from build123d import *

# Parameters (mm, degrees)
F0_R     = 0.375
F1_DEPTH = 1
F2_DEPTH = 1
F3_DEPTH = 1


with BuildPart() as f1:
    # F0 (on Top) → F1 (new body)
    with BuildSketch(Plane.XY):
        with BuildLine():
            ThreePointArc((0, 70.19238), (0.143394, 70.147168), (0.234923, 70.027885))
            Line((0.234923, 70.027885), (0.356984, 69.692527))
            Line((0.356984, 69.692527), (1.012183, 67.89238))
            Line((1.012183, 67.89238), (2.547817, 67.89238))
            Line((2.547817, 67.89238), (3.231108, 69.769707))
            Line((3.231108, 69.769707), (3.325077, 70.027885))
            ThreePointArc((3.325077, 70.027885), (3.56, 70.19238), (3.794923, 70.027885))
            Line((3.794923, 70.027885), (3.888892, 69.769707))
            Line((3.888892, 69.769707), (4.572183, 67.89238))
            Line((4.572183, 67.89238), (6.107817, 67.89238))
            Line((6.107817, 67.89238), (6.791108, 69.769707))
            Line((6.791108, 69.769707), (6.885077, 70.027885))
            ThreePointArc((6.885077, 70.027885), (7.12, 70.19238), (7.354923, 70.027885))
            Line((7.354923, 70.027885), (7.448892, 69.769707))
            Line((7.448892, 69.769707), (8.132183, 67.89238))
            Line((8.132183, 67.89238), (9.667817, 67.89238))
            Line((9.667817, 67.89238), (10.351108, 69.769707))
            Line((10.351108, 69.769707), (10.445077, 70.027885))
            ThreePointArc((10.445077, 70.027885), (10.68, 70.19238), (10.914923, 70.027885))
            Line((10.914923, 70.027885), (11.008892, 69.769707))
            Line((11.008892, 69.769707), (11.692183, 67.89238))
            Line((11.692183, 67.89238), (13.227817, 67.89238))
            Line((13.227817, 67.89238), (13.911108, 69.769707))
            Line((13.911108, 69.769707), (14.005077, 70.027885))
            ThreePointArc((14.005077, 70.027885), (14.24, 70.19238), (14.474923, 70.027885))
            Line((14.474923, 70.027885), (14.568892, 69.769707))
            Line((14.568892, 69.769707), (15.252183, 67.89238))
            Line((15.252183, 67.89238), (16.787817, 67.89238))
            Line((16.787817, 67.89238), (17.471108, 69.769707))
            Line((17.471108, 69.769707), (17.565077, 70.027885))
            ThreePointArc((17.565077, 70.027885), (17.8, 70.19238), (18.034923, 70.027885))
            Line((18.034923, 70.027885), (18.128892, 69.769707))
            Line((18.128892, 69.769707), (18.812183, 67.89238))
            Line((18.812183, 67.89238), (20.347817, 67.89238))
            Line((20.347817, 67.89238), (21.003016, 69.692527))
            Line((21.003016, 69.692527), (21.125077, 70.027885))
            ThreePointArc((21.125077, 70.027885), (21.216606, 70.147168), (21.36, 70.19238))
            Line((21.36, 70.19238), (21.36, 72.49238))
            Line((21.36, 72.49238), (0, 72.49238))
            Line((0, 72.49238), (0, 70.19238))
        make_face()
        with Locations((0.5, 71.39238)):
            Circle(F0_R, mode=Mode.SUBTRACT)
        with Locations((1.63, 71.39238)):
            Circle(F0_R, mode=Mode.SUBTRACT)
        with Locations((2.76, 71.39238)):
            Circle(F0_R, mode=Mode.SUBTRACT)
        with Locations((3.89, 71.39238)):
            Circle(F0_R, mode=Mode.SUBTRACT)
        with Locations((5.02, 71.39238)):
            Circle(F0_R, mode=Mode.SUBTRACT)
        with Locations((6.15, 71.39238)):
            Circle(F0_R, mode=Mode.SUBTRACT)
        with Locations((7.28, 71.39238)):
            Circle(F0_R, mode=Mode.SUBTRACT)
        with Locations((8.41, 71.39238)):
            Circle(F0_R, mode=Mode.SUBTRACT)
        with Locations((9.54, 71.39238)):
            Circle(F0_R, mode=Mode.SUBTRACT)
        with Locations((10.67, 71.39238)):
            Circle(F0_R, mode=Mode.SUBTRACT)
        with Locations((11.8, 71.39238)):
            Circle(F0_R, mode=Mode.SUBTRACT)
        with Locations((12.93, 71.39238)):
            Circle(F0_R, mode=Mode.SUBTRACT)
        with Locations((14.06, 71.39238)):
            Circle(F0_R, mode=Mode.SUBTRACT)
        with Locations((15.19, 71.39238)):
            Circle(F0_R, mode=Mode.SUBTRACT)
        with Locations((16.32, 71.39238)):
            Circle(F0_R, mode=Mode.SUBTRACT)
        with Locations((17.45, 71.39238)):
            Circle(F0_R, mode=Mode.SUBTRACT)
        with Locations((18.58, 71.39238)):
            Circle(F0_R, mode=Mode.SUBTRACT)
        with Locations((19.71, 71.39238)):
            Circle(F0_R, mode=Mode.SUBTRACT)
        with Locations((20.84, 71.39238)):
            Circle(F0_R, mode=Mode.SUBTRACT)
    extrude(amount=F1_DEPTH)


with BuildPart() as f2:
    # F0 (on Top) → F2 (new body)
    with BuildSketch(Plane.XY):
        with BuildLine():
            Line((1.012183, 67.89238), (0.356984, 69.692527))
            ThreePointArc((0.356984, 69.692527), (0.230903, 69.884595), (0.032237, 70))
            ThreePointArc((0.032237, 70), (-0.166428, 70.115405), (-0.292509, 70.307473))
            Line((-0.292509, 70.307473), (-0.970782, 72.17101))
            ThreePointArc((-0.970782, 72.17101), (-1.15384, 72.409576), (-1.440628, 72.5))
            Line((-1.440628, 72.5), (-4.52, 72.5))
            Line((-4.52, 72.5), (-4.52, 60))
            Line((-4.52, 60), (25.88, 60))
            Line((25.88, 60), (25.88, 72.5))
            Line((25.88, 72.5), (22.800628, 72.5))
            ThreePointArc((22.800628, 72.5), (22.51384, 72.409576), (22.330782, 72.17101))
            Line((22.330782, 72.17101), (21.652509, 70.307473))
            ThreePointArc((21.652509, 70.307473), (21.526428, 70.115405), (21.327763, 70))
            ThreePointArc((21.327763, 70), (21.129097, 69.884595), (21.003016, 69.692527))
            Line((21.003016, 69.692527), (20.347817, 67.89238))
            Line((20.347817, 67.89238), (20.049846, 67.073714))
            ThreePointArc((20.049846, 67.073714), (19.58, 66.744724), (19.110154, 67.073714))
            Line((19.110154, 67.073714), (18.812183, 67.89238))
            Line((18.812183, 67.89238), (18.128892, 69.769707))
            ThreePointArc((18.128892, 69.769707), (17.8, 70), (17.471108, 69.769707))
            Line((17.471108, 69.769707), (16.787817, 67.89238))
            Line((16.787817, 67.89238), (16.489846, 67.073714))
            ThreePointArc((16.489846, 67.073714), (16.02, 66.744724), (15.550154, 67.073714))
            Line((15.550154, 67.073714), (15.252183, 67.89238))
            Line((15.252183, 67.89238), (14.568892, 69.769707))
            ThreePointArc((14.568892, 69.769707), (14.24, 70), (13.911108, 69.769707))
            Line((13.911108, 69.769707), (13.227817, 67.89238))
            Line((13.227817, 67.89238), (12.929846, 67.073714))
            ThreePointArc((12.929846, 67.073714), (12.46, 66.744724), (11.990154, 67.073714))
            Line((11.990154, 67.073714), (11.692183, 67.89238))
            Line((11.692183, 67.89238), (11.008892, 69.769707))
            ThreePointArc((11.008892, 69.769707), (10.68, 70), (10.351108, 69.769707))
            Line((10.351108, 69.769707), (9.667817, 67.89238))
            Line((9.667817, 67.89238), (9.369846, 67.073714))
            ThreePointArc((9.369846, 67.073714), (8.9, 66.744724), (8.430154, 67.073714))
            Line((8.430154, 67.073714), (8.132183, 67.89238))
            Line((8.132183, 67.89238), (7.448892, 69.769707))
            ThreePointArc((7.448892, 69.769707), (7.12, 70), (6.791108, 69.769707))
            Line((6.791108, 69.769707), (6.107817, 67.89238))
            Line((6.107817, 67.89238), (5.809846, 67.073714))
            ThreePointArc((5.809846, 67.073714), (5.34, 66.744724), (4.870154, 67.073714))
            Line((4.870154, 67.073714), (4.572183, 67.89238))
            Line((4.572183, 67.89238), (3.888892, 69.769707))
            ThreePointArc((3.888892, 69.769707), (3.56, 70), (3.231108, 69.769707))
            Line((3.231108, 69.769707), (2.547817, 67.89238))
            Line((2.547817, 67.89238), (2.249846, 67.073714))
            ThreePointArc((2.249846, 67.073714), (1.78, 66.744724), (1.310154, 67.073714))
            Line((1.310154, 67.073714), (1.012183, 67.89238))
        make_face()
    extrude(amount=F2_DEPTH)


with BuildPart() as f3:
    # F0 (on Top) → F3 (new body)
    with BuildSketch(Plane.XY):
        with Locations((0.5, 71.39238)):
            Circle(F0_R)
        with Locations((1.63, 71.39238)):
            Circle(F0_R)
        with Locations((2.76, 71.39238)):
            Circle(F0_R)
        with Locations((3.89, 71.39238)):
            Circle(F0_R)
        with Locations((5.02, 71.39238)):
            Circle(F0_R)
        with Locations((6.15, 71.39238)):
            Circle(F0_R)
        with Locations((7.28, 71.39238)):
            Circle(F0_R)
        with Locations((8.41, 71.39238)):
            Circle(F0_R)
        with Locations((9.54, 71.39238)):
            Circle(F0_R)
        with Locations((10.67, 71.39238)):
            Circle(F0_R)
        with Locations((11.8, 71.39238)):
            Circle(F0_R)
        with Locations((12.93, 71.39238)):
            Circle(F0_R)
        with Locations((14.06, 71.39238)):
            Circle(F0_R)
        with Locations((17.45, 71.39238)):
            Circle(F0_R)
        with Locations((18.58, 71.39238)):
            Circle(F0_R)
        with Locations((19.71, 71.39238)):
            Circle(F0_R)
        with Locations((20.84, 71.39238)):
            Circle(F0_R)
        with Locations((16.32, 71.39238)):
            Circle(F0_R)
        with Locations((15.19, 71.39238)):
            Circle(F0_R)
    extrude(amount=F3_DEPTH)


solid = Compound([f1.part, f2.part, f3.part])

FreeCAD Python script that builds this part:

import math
import FreeCAD as App
import Part
import Sketcher
Q = App.Units.Quantity

doc = App.newDocument("Part")
params = doc.addObject("Spreadsheet::Sheet", "Params")
for row, (alias, value) in enumerate([
    ("sketch1_diameter", "0.75 mm"),
    ("sketch1_radius", "0.25 mm"),
    ("sketch1_height", "2.3 mm"),
    ("sketch1_width", "21.36 mm"),
    ("pad1_length", "1 mm"),
    ("sketch2_radius", "0.499998 mm"),
    ("sketch2_radius2", "0.349999 mm"),
    ("sketch2_width", "30.4 mm"),
    ("sketch2_height", "12.5 mm"),
    ("pad2_length", "1 mm"),
    ("sketch3_diameter", "0.75 mm"),
    ("pad3_length", "1 mm"),
], start=1):
    params.set(f"A{row}", alias)
    params.set(f"B{row}", "=" + value)
    params.setAlias(f"B{row}", alias)

body = doc.addObject("PartDesign::Body", "Body")

# Sketch on XY plane
sketch1 = doc.addObject("Sketcher::SketchObject", "Sketch")
body.addObject(sketch1)
sketch1.AttachmentSupport = (doc.XY_Plane, [""])
sketch1.MapMode = "FlatFace"
sketch1.addGeometry(Part.ArcOfCircle(Part.Circle(App.Vector(0, 69.94, 0), App.Vector(0, 0, 1), 0.25), math.radians(20), math.radians(90)), False)
sketch1.addGeometry(Part.LineSegment(App.Vector(0.23, 70.03, 0), App.Vector(0.36, 69.69, 0)), False)
sketch1.addGeometry(Part.LineSegment(App.Vector(0.36, 69.69, 0), App.Vector(1.01, 67.89, 0)), False)
sketch1.addGeometry(Part.LineSegment(App.Vector(1.01, 67.89, 0), App.Vector(2.55, 67.89, 0)), False)
sketch1.addGeometry(Part.LineSegment(App.Vector(2.55, 67.89, 0), App.Vector(3.23, 69.77, 0)), False)
sketch1.addGeometry(Part.LineSegment(App.Vector(3.23, 69.77, 0), App.Vector(3.33, 70.03, 0)), False)
sketch1.addGeometry(Part.ArcOfCircle(Part.Circle(App.Vector(3.56, 69.94, 0), App.Vector(0, 0, 1), 0.25), math.radians(20), math.radians(160)), False)
sketch1.addGeometry(Part.LineSegment(App.Vector(3.79, 70.03, 0), App.Vector(3.89, 69.77, 0)), False)
sketch1.addGeometry(Part.LineSegment(App.Vector(3.89, 69.77, 0), App.Vector(4.57, 67.89, 0)), False)
sketch1.addGeometry(Part.LineSegment(App.Vector(4.57, 67.89, 0), App.Vector(6.11, 67.89, 0)), False)
sketch1.addGeometry(Part.LineSegment(App.Vector(6.11, 67.89, 0), App.Vector(6.79, 69.77, 0)), False)
sketch1.addGeometry(Part.LineSegment(App.Vector(6.79, 69.77, 0), App.Vector(6.89, 70.03, 0)), False)
sketch1.addGeometry(Part.ArcOfCircle(Part.Circle(App.Vector(7.12, 69.94, 0), App.Vector(0, 0, 1), 0.25), math.radians(20), math.radians(160)), False)
sketch1.addGeometry(Part.LineSegment(App.Vector(7.35, 70.03, 0), App.Vector(7.45, 69.77, 0)), False)
sketch1.addGeometry(Part.LineSegment(App.Vector(7.45, 69.77, 0), App.Vector(8.13, 67.89, 0)), False)
sketch1.addGeometry(Part.LineSegment(App.Vector(8.13, 67.89, 0), App.Vector(9.67, 67.89, 0)), False)
sketch1.addGeometry(Part.LineSegment(App.Vector(9.67, 67.89, 0), App.Vector(10.35, 69.77, 0)), False)
sketch1.addGeometry(Part.LineSegment(App.Vector(10.35, 69.77, 0), App.Vector(10.45, 70.03, 0)), False)
sketch1.addGeometry(Part.ArcOfCircle(Part.Circle(App.Vector(10.68, 69.94, 0), App.Vector(0, 0, 1), 0.25), math.radians(20), math.radians(160)), False)
sketch1.addGeometry(Part.LineSegment(App.Vector(10.91, 70.03, 0), App.Vector(11.01, 69.77, 0)), False)
sketch1.addGeometry(Part.LineSegment(App.Vector(11.01, 69.77, 0), App.Vector(11.69, 67.89, 0)), False)
sketch1.addGeometry(Part.LineSegment(App.Vector(11.69, 67.89, 0), App.Vector(13.23, 67.89, 0)), False)
sketch1.addGeometry(Part.LineSegment(App.Vector(13.23, 67.89, 0), App.Vector(13.91, 69.77, 0)), False)
sketch1.addGeometry(Part.LineSegment(App.Vector(13.91, 69.77, 0), App.Vector(14.01, 70.03, 0)), False)
sketch1.addGeometry(Part.ArcOfCircle(Part.Circle(App.Vector(14.24, 69.94, 0), App.Vector(0, 0, 1), 0.25), math.radians(20), math.radians(160)), False)
sketch1.addGeometry(Part.LineSegment(App.Vector(14.47, 70.03, 0), App.Vector(14.57, 69.77, 0)), False)
sketch1.addGeometry(Part.LineSegment(App.Vector(14.57, 69.77, 0), App.Vector(15.25, 67.89, 0)), False)
sketch1.addGeometry(Part.LineSegment(App.Vector(15.25, 67.89, 0), App.Vector(16.79, 67.89, 0)), False)
sketch1.addGeometry(Part.LineSegment(App.Vector(16.79, 67.89, 0), App.Vector(17.47, 69.77, 0)), False)
sketch1.addGeometry(Part.LineSegment(App.Vector(17.47, 69.77, 0), App.Vector(17.57, 70.03, 0)), False)
sketch1.addGeometry(Part.ArcOfCircle(Part.Circle(App.Vector(17.8, 69.94, 0), App.Vector(0, 0, 1), 0.25), math.radians(20), math.radians(160)), False)
sketch1.addGeometry(Part.LineSegment(App.Vector(18.03, 70.03, 0), App.Vector(18.13, 69.77, 0)), False)
sketch1.addGeometry(Part.LineSegment(App.Vector(18.13, 69.77, 0), App.Vector(18.81, 67.89, 0)), False)
sketch1.addGeometry(Part.LineSegment(App.Vector(18.81, 67.89, 0), App.Vector(20.35, 67.89, 0)), False)
sketch1.addGeometry(Part.LineSegment(App.Vector(20.35, 67.89, 0), App.Vector(21, 69.69, 0)), False)
sketch1.addGeometry(Part.LineSegment(App.Vector(21, 69.69, 0), App.Vector(21.13, 70.03, 0)), False)
sketch1.addGeometry(Part.ArcOfCircle(Part.Circle(App.Vector(21.36, 69.94, 0), App.Vector(0, 0, 1), 0.25), math.radians(90), math.radians(160)), False)
sketch1.addGeometry(Part.LineSegment(App.Vector(21.36, 70.19, 0), App.Vector(21.36, 72.49, 0)), False)
sketch1.addGeometry(Part.LineSegment(App.Vector(21.36, 72.49, 0), App.Vector(0, 72.49, 0)), False)
sketch1.addGeometry(Part.LineSegment(App.Vector(0, 72.49, 0), App.Vector(0, 70.19, 0)), False)
sketch1.addGeometry(Part.Circle(App.Vector(0.5, 71.39, 0), App.Vector(0, 0, 1), 0.38), False)
sketch1.addGeometry(Part.Circle(App.Vector(1.63, 71.39, 0), App.Vector(0, 0, 1), 0.38), False)
sketch1.addGeometry(Part.Circle(App.Vector(2.76, 71.39, 0), App.Vector(0, 0, 1), 0.38), False)
sketch1.addGeometry(Part.Circle(App.Vector(3.89, 71.39, 0), App.Vector(0, 0, 1), 0.38), False)
sketch1.addGeometry(Part.Circle(App.Vector(5.02, 71.39, 0), App.Vector(0, 0, 1), 0.38), False)
sketch1.addGeometry(Part.Circle(App.Vector(6.15, 71.39, 0), App.Vector(0, 0, 1), 0.38), False)
sketch1.addGeometry(Part.Circle(App.Vector(7.28, 71.39, 0), App.Vector(0, 0, 1), 0.38), False)
sketch1.addGeometry(Part.Circle(App.Vector(8.41, 71.39, 0), App.Vector(0, 0, 1), 0.38), False)
sketch1.addGeometry(Part.Circle(App.Vector(9.54, 71.39, 0), App.Vector(0, 0, 1), 0.38), False)
sketch1.addGeometry(Part.Circle(App.Vector(10.67, 71.39, 0), App.Vector(0, 0, 1), 0.38), False)
sketch1.addGeometry(Part.Circle(App.Vector(11.8, 71.39, 0), App.Vector(0, 0, 1), 0.38), False)
sketch1.addGeometry(Part.Circle(App.Vector(12.93, 71.39, 0), App.Vector(0, 0, 1), 0.38), False)
sketch1.addGeometry(Part.Circle(App.Vector(14.06, 71.39, 0), App.Vector(0, 0, 1), 0.38), False)
sketch1.addGeometry(Part.Circle(App.Vector(15.19, 71.39, 0), App.Vector(0, 0, 1), 0.38), False)
sketch1.addGeometry(Part.Circle(App.Vector(16.32, 71.39, 0), App.Vector(0, 0, 1), 0.38), False)
sketch1.addGeometry(Part.Circle(App.Vector(17.45, 71.39, 0), App.Vector(0, 0, 1), 0.38), False)
sketch1.addGeometry(Part.Circle(App.Vector(18.58, 71.39, 0), App.Vector(0, 0, 1), 0.38), False)
sketch1.addGeometry(Part.Circle(App.Vector(19.71, 71.39, 0), App.Vector(0, 0, 1), 0.38), False)
sketch1.addGeometry(Part.Circle(App.Vector(20.84, 71.39, 0), App.Vector(0, 0, 1), 0.38), False)
sketch1.addConstraint(Sketcher.Constraint("Coincident", 0, 1, 1, 1))
sketch1.addConstraint(Sketcher.Constraint("Coincident", 1, 2, 2, 1))
sketch1.addConstraint(Sketcher.Constraint("Coincident", 2, 2, 3, 1))
sketch1.addConstraint(Sketcher.Constraint("Coincident", 3, 2, 4, 1))
sketch1.addConstraint(Sketcher.Constraint("Coincident", 4, 2, 5, 1))
sketch1.addConstraint(Sketcher.Constraint("Tangent", 5, 2, 6, 2))
sketch1.addConstraint(Sketcher.Constraint("Tangent", 6, 1, 7, 1))
sketch1.addConstraint(Sketcher.Constraint("Coincident", 7, 2, 8, 1))
sketch1.addConstraint(Sketcher.Constraint("Coincident", 8, 2, 9, 1))
sketch1.addConstraint(Sketcher.Constraint("Coincident", 9, 2, 10, 1))
sketch1.addConstraint(Sketcher.Constraint("Coincident", 10, 2, 11, 1))
sketch1.addConstraint(Sketcher.Constraint("Tangent", 11, 2, 12, 2))
sketch1.addConstraint(Sketcher.Constraint("Tangent", 12, 1, 13, 1))
sketch1.addConstraint(Sketcher.Constraint("Coincident", 13, 2, 14, 1))
sketch1.addConstraint(Sketcher.Constraint("Coincident", 14, 2, 15, 1))
sketch1.addConstraint(Sketcher.Constraint("Coincident", 15, 2, 16, 1))
sketch1.addConstraint(Sketcher.Constraint("Coincident", 16, 2, 17, 1))
sketch1.addConstraint(Sketcher.Constraint("Tangent", 17, 2, 18, 2))
sketch1.addConstraint(Sketcher.Constraint("Tangent", 18, 1, 19, 1))
sketch1.addConstraint(Sketcher.Constraint("Coincident", 19, 2, 20, 1))
sketch1.addConstraint(Sketcher.Constraint("Coincident", 20, 2, 21, 1))
sketch1.addConstraint(Sketcher.Constraint("Coincident", 21, 2, 22, 1))
sketch1.addConstraint(Sketcher.Constraint("Coincident", 22, 2, 23, 1))
sketch1.addConstraint(Sketcher.Constraint("Tangent", 23, 2, 24, 2))
sketch1.addConstraint(Sketcher.Constraint("Tangent", 24, 1, 25, 1))
sketch1.addConstraint(Sketcher.Constraint("Coincident", 25, 2, 26, 1))
sketch1.addConstraint(Sketcher.Constraint("Coincident", 26, 2, 27, 1))
sketch1.addConstraint(Sketcher.Constraint("Coincident", 27, 2, 28, 1))
sketch1.addConstraint(Sketcher.Constraint("Coincident", 28, 2, 29, 1))
sketch1.addConstraint(Sketcher.Constraint("Tangent", 29, 2, 30, 2))
sketch1.addConstraint(Sketcher.Constraint("Tangent", 30, 1, 31, 1))
sketch1.addConstraint(Sketcher.Constraint("Coincident", 31, 2, 32, 1))
sketch1.addConstraint(Sketcher.Constraint("Coincident", 32, 2, 33, 1))
sketch1.addConstraint(Sketcher.Constraint("Coincident", 33, 2, 34, 1))
sketch1.addConstraint(Sketcher.Constraint("Coincident", 34, 2, 35, 1))
sketch1.addConstraint(Sketcher.Constraint("Coincident", 35, 2, 36, 2))
sketch1.addConstraint(Sketcher.Constraint("Coincident", 36, 1, 37, 1))
sketch1.addConstraint(Sketcher.Constraint("Coincident", 37, 2, 38, 1))
sketch1.addConstraint(Sketcher.Constraint("Coincident", 38, 2, 39, 1))
sketch1.addConstraint(Sketcher.Constraint("Coincident", 39, 2, 0, 2))
sketch1.addConstraint(Sketcher.Constraint("Horizontal", 3))
sketch1.addConstraint(Sketcher.Constraint("Horizontal", 9))
sketch1.addConstraint(Sketcher.Constraint("Horizontal", 15))
sketch1.addConstraint(Sketcher.Constraint("Horizontal", 21))
sketch1.addConstraint(Sketcher.Constraint("Horizontal", 27))
sketch1.addConstraint(Sketcher.Constraint("Horizontal", 33))
sketch1.addConstraint(Sketcher.Constraint("Vertical", 37))
sketch1.addConstraint(Sketcher.Constraint("Horizontal", 38))
sketch1.addConstraint(Sketcher.Constraint("Vertical", 39))
sketch1.addConstraint(Sketcher.Constraint("Equal", 0, 6))
sketch1.addConstraint(Sketcher.Constraint("Equal", 6, 12))
sketch1.addConstraint(Sketcher.Constraint("Equal", 12, 18))
sketch1.addConstraint(Sketcher.Constraint("Equal", 18, 24))
sketch1.addConstraint(Sketcher.Constraint("Equal", 24, 30))
sketch1.addConstraint(Sketcher.Constraint("Equal", 30, 36))
sketch1.addConstraint(Sketcher.Constraint("Equal", 40, 41))
sketch1.addConstraint(Sketcher.Constraint("Equal", 41, 42))
sketch1.addConstraint(Sketcher.Constraint("Equal", 42, 43))
sketch1.addConstraint(Sketcher.Constraint("Equal", 43, 44))
sketch1.addConstraint(Sketcher.Constraint("Equal", 44, 45))
sketch1.addConstraint(Sketcher.Constraint("Equal", 45, 46))
sketch1.addConstraint(Sketcher.Constraint("Equal", 46, 47))
sketch1.addConstraint(Sketcher.Constraint("Equal", 47, 48))
sketch1.addConstraint(Sketcher.Constraint("Equal", 48, 49))
sketch1.addConstraint(Sketcher.Constraint("Equal", 49, 50))
sketch1.addConstraint(Sketcher.Constraint("Equal", 50, 51))
sketch1.addConstraint(Sketcher.Constraint("Equal", 51, 52))
sketch1.addConstraint(Sketcher.Constraint("Equal", 52, 53))
sketch1.addConstraint(Sketcher.Constraint("Equal", 53, 54))
sketch1.addConstraint(Sketcher.Constraint("Equal", 54, 55))
sketch1.addConstraint(Sketcher.Constraint("Equal", 55, 56))
sketch1.addConstraint(Sketcher.Constraint("Equal", 56, 57))
sketch1.addConstraint(Sketcher.Constraint("Equal", 57, 58))
sketch1.addConstraint(Sketcher.Constraint("PointOnObject", 0, 3, -2))
sketch1.addConstraint(Sketcher.Constraint("PointOnObject", 38, 2, -2))
sketch1.addConstraint(Sketcher.Constraint("Parallel", 4, 5))
sketch1.addConstraint(Sketcher.Constraint("Parallel", 2, 7))
sketch1.addConstraint(Sketcher.Constraint("Parallel", 7, 8))
sketch1.addConstraint(Sketcher.Constraint("Parallel", 5, 10))
sketch1.addConstraint(Sketcher.Constraint("Parallel", 10, 11))
sketch1.addConstraint(Sketcher.Constraint("Parallel", 8, 13))
sketch1.addConstraint(Sketcher.Constraint("Parallel", 13, 14))
sketch1.addConstraint(Sketcher.Constraint("Parallel", 11, 16))
sketch1.addConstraint(Sketcher.Constraint("Parallel", 16, 17))
sketch1.addConstraint(Sketcher.Constraint("Parallel", 14, 19))
sketch1.addConstraint(Sketcher.Constraint("Parallel", 19, 20))
sketch1.addConstraint(Sketcher.Constraint("Parallel", 17, 22))
sketch1.addConstraint(Sketcher.Constraint("Parallel", 22, 23))
sketch1.addConstraint(Sketcher.Constraint("Parallel", 20, 25))
sketch1.addConstraint(Sketcher.Constraint("Parallel", 25, 26))
sketch1.addConstraint(Sketcher.Constraint("Parallel", 23, 28))
sketch1.addConstraint(Sketcher.Constraint("Parallel", 28, 29))
sketch1.addConstraint(Sketcher.Constraint("Parallel", 26, 31))
sketch1.addConstraint(Sketcher.Constraint("Parallel", 31, 32))
sketch1.addConstraint(Sketcher.Constraint("Parallel", 29, 34))
sketch1.addConstraint(Sketcher.Constraint("Parallel", 28, 35))
sketch1.addConstraint(Sketcher.Constraint("Horizontal", 0, 3, 6, 3))
sketch1.addConstraint(Sketcher.Constraint("Horizontal", 6, 3, 12, 3))
sketch1.addConstraint(Sketcher.Constraint("Horizontal", 12, 3, 18, 3))
sketch1.addConstraint(Sketcher.Constraint("Horizontal", 18, 3, 24, 3))
sketch1.addConstraint(Sketcher.Constraint("Horizontal", 24, 3, 30, 3))
sketch1.addConstraint(Sketcher.Constraint("Horizontal", 30, 3, 36, 3))
sketch1.addConstraint(Sketcher.Constraint("Horizontal", 40, 3, 41, 3))
sketch1.addConstraint(Sketcher.Constraint("Horizontal", 41, 3, 42, 3))
sketch1.addConstraint(Sketcher.Constraint("Horizontal", 42, 3, 43, 3))
sketch1.addConstraint(Sketcher.Constraint("Horizontal", 43, 3, 44, 3))
sketch1.addConstraint(Sketcher.Constraint("Horizontal", 44, 3, 45, 3))
sketch1.addConstraint(Sketcher.Constraint("Horizontal", 45, 3, 46, 3))
sketch1.addConstraint(Sketcher.Constraint("Horizontal", 46, 3, 47, 3))
sketch1.addConstraint(Sketcher.Constraint("Horizontal", 47, 3, 48, 3))
sketch1.addConstraint(Sketcher.Constraint("Horizontal", 48, 3, 49, 3))
sketch1.addConstraint(Sketcher.Constraint("Horizontal", 49, 3, 50, 3))
sketch1.addConstraint(Sketcher.Constraint("Horizontal", 50, 3, 51, 3))
sketch1.addConstraint(Sketcher.Constraint("Horizontal", 51, 3, 52, 3))
sketch1.addConstraint(Sketcher.Constraint("Horizontal", 52, 3, 53, 3))
sketch1.addConstraint(Sketcher.Constraint("Horizontal", 53, 3, 54, 3))
sketch1.addConstraint(Sketcher.Constraint("Horizontal", 54, 3, 55, 3))
sketch1.addConstraint(Sketcher.Constraint("Horizontal", 55, 3, 56, 3))
sketch1.addConstraint(Sketcher.Constraint("Horizontal", 56, 3, 57, 3))
sketch1.addConstraint(Sketcher.Constraint("Horizontal", 57, 3, 58, 3))
sketch1.addConstraint(Sketcher.Constraint("Horizontal", 0, 1, 5, 2))
sketch1.addConstraint(Sketcher.Constraint("Horizontal", 5, 2, 6, 1))
sketch1.addConstraint(Sketcher.Constraint("Horizontal", 4, 2, 7, 2))
sketch1.addConstraint(Sketcher.Constraint("Horizontal", 3, 2, 8, 2))
sketch1.addConstraint(Sketcher.Constraint("Horizontal", 7, 2, 10, 2))
sketch1.addConstraint(Sketcher.Constraint("Horizontal", 10, 2, 13, 2))
sketch1.addConstraint(Sketcher.Constraint("Horizontal", 9, 2, 14, 2))
sketch1.addConstraint(Sketcher.Constraint("Horizontal", 13, 2, 16, 2))
sketch1.addConstraint(Sketcher.Constraint("Horizontal", 16, 2, 19, 2))
sketch1.addConstraint(Sketcher.Constraint("Horizontal", 15, 2, 20, 2))
sketch1.addConstraint(Sketcher.Constraint("Horizontal", 19, 2, 22, 2))
sketch1.addConstraint(Sketcher.Constraint("Horizontal", 22, 2, 25, 2))
sketch1.addConstraint(Sketcher.Constraint("Horizontal", 21, 2, 26, 2))
sketch1.addConstraint(Sketcher.Constraint("Horizontal", 25, 2, 28, 2))
sketch1.addConstraint(Sketcher.Constraint("Horizontal", 28, 2, 31, 2))
sketch1.addConstraint(Sketcher.Constraint("Horizontal", 27, 2, 32, 2))
sketch1.addConstraint(Sketcher.Constraint("Horizontal", 1, 2, 34, 2))
sketch1.addConstraint(Sketcher.Constraint("Horizontal", 30, 1, 35, 2))
sketch1.addConstraint(Sketcher.Constraint("Equal", 3, 9))
sketch1.addConstraint(Sketcher.Constraint("Equal", 9, 15))
sketch1.addConstraint(Sketcher.Constraint("Equal", 15, 21))
sketch1.addConstraint(Sketcher.Constraint("Equal", 21, 27))
sketch1.addConstraint(Sketcher.Constraint("Equal", 27, 33))
sketch1.addConstraint(Sketcher.Constraint("Equal", 1, 35))
sketch1.addConstraint(Sketcher.Constraint("Diameter", 40, 0.75))
sketch1.addConstraint(Sketcher.Constraint("Angle", 4, Q("70.000004 deg")))
sketch1.addConstraint(Sketcher.Constraint("Radius", 0, 0.25))
sketch1.addConstraint(Sketcher.Constraint("DistanceY", 37, 1, 37, 2, 2.3))
sketch1.addConstraint(Sketcher.Constraint("DistanceX", 38, 2, 38, 1, 21.36))
sketch1.addConstraint(Sketcher.Constraint("DistanceX", -1, 1, 30, 3, 17.8))
sketch1.addConstraint(Sketcher.Constraint("DistanceX", -1, 1, 40, 3, 0.5))
sketch1.addConstraint(Sketcher.Constraint("DistanceX", -1, 1, 50, 3, 11.8))
sketch1.addConstraint(Sketcher.Constraint("DistanceX", -1, 1, 41, 3, 1.63))
sketch1.addConstraint(Sketcher.Constraint("DistanceX", -1, 1, 42, 3, 2.76))
sketch1.addConstraint(Sketcher.Constraint("DistanceX", -1, 1, 43, 3, 3.89))
sketch1.addConstraint(Sketcher.Constraint("DistanceX", -1, 1, 44, 3, 5.02))
sketch1.addConstraint(Sketcher.Constraint("DistanceX", -1, 1, 45, 3, 6.15))
sketch1.addConstraint(Sketcher.Constraint("DistanceX", -1, 1, 46, 3, 7.28))
sketch1.addConstraint(Sketcher.Constraint("DistanceX", -1, 1, 47, 3, 8.41))
sketch1.addConstraint(Sketcher.Constraint("DistanceX", -1, 1, 48, 3, 9.54))
sketch1.addConstraint(Sketcher.Constraint("DistanceX", -1, 1, 49, 3, 10.67))
sketch1.addConstraint(Sketcher.Constraint("DistanceX", -1, 1, 51, 3, 12.93))
sketch1.addConstraint(Sketcher.Constraint("DistanceX", -1, 1, 52, 3, 14.06))
sketch1.addConstraint(Sketcher.Constraint("DistanceX", -1, 1, 53, 3, 15.19))
sketch1.addConstraint(Sketcher.Constraint("DistanceX", -1, 1, 54, 3, 16.32))
sketch1.addConstraint(Sketcher.Constraint("DistanceX", -1, 1, 55, 3, 17.45))
sketch1.addConstraint(Sketcher.Constraint("DistanceX", -1, 1, 56, 3, 18.58))
sketch1.addConstraint(Sketcher.Constraint("DistanceX", -1, 1, 57, 3, 19.71))
sketch1.addConstraint(Sketcher.Constraint("DistanceX", -1, 1, 58, 3, 20.84))
sketch1.addConstraint(Sketcher.Constraint("Distance", 1, 0.356881))
sketch1.addConstraint(Sketcher.Constraint("Distance", 4, 1.99781))
sketch1.addConstraint(Sketcher.Constraint("DistanceX", 3, 1, 3, 2, 1.535634))
sketch1.addConstraint(Sketcher.Constraint("DistanceY", -1, 1, 0, 3, 69.94238))
sketch1.addConstraint(Sketcher.Constraint("DistanceY", -1, 1, 40, 3, 71.39238))
sketch1.setExpression("Constraints[144]", "Params.sketch1_diameter")
sketch1.setExpression("Constraints[146]", "Params.sketch1_radius")
sketch1.setExpression("Constraints[147]", "Params.sketch1_height")
sketch1.setExpression("Constraints[148]", "Params.sketch1_width")
pad1 = doc.addObject("PartDesign::Pad", "Pad")
body.addObject(pad1)
pad1.Profile = sketch1
pad1.setExpression("Length", "Params.pad1_length")
body2 = doc.addObject("PartDesign::Body", "Body001")

# Sketch on XY plane
sketch2 = doc.addObject("Sketcher::SketchObject", "Sketch001")
body2.addObject(sketch2)
sketch2.AttachmentSupport = (doc.getObject("XY_Plane001"), [""])
sketch2.MapMode = "FlatFace"
sketch2.addGeometry(Part.LineSegment(App.Vector(1.01, 67.89, 0), App.Vector(0.36, 69.69, 0)), False)
sketch2.addGeometry(Part.ArcOfCircle(Part.Circle(App.Vector(-0.11, 69.52, 0), App.Vector(0, 0, 1), 0.5), math.radians(20), math.radians(73)), False)
sketch2.addGeometry(Part.ArcOfCircle(Part.Circle(App.Vector(0.18, 70.48, 0), App.Vector(0, 0, 1), 0.5), math.radians(-160), math.radians(-107)), False)
sketch2.addGeometry(Part.LineSegment(App.Vector(-0.29, 70.31, 0), App.Vector(-0.97, 72.17, 0)), False)
sketch2.addGeometry(Part.ArcOfCircle(Part.Circle(App.Vector(-1.44, 72, 0), App.Vector(0, 0, 1), 0.5), math.radians(20), math.radians(90)), False)
sketch2.addGeometry(Part.LineSegment(App.Vector(-1.44, 72.5, 0), App.Vector(-4.52, 72.5, 0)), False)
sketch2.addGeometry(Part.LineSegment(App.Vector(-4.52, 72.5, 0), App.Vector(-4.52, 60, 0)), False)
sketch2.addGeometry(Part.LineSegment(App.Vector(-4.52, 60, 0), App.Vector(25.88, 60, 0)), False)
sketch2.addGeometry(Part.LineSegment(App.Vector(25.88, 60, 0), App.Vector(25.88, 72.5, 0)), False)
sketch2.addGeometry(Part.LineSegment(App.Vector(25.88, 72.5, 0), App.Vector(22.8, 72.5, 0)), False)
sketch2.addGeometry(Part.ArcOfCircle(Part.Circle(App.Vector(22.8, 72, 0), App.Vector(0, 0, 1), 0.5), math.radians(90), math.radians(160)), False)
sketch2.addGeometry(Part.LineSegment(App.Vector(22.33, 72.17, 0), App.Vector(21.65, 70.31, 0)), False)
sketch2.addGeometry(Part.ArcOfCircle(Part.Circle(App.Vector(21.18, 70.48, 0), App.Vector(0, 0, 1), 0.5), math.radians(-73), math.radians(-20)), False)
sketch2.addGeometry(Part.ArcOfCircle(Part.Circle(App.Vector(21.47, 69.52, 0), App.Vector(0, 0, 1), 0.5), math.radians(107), math.radians(160)), False)
sketch2.addGeometry(Part.LineSegment(App.Vector(21, 69.69, 0), App.Vector(20.35, 67.89, 0)), False)
sketch2.addGeometry(Part.LineSegment(App.Vector(20.35, 67.89, 0), App.Vector(20.05, 67.07, 0)), False)
sketch2.addGeometry(Part.ArcOfCircle(Part.Circle(App.Vector(19.58, 67.24, 0), App.Vector(0, 0, 1), 0.5), math.radians(-160), math.radians(-20)), False)
sketch2.addGeometry(Part.LineSegment(App.Vector(19.11, 67.07, 0), App.Vector(18.81, 67.89, 0)), False)
sketch2.addGeometry(Part.LineSegment(App.Vector(18.81, 67.89, 0), App.Vector(18.13, 69.77, 0)), False)
sketch2.addGeometry(Part.ArcOfCircle(Part.Circle(App.Vector(17.8, 69.65, 0), App.Vector(0, 0, 1), 0.35), math.radians(20), math.radians(160)), False)
sketch2.addGeometry(Part.LineSegment(App.Vector(17.47, 69.77, 0), App.Vector(16.79, 67.89, 0)), False)
sketch2.addGeometry(Part.LineSegment(App.Vector(16.79, 67.89, 0), App.Vector(16.49, 67.07, 0)), False)
sketch2.addGeometry(Part.ArcOfCircle(Part.Circle(App.Vector(16.02, 67.24, 0), App.Vector(0, 0, 1), 0.5), math.radians(-160), math.radians(-20)), False)
sketch2.addGeometry(Part.LineSegment(App.Vector(15.55, 67.07, 0), App.Vector(15.25, 67.89, 0)), False)
sketch2.addGeometry(Part.LineSegment(App.Vector(15.25, 67.89, 0), App.Vector(14.57, 69.77, 0)), False)
sketch2.addGeometry(Part.ArcOfCircle(Part.Circle(App.Vector(14.24, 69.65, 0), App.Vector(0, 0, 1), 0.35), math.radians(20), math.radians(160)), False)
sketch2.addGeometry(Part.LineSegment(App.Vector(13.91, 69.77, 0), App.Vector(13.23, 67.89, 0)), False)
sketch2.addGeometry(Part.LineSegment(App.Vector(13.23, 67.89, 0), App.Vector(12.93, 67.07, 0)), False)
sketch2.addGeometry(Part.ArcOfCircle(Part.Circle(App.Vector(12.46, 67.24, 0), App.Vector(0, 0, 1), 0.5), math.radians(-160), math.radians(-20)), False)
sketch2.addGeometry(Part.LineSegment(App.Vector(11.99, 67.07, 0), App.Vector(11.69, 67.89, 0)), False)
sketch2.addGeometry(Part.LineSegment(App.Vector(11.69, 67.89, 0), App.Vector(11.01, 69.77, 0)), False)
sketch2.addGeometry(Part.ArcOfCircle(Part.Circle(App.Vector(10.68, 69.65, 0), App.Vector(0, 0, 1), 0.35), math.radians(20), math.radians(160)), False)
sketch2.addGeometry(Part.LineSegment(App.Vector(10.35, 69.77, 0), App.Vector(9.67, 67.89, 0)), False)
sketch2.addGeometry(Part.LineSegment(App.Vector(9.67, 67.89, 0), App.Vector(9.37, 67.07, 0)), False)
sketch2.addGeometry(Part.ArcOfCircle(Part.Circle(App.Vector(8.9, 67.24, 0), App.Vector(0, 0, 1), 0.5), math.radians(-160), math.radians(-20)), False)
sketch2.addGeometry(Part.LineSegment(App.Vector(8.43, 67.07, 0), App.Vector(8.13, 67.89, 0)), False)
sketch2.addGeometry(Part.LineSegment(App.Vector(8.13, 67.89, 0), App.Vector(7.45, 69.77, 0)), False)
sketch2.addGeometry(Part.ArcOfCircle(Part.Circle(App.Vector(7.12, 69.65, 0), App.Vector(0, 0, 1), 0.35), math.radians(20), math.radians(160)), False)
sketch2.addGeometry(Part.LineSegment(App.Vector(6.79, 69.77, 0), App.Vector(6.11, 67.89, 0)), False)
sketch2.addGeometry(Part.LineSegment(App.Vector(6.11, 67.89, 0), App.Vector(5.81, 67.07, 0)), False)
sketch2.addGeometry(Part.ArcOfCircle(Part.Circle(App.Vector(5.34, 67.24, 0), App.Vector(0, 0, 1), 0.5), math.radians(-160), math.radians(-20)), False)
sketch2.addGeometry(Part.LineSegment(App.Vector(4.87, 67.07, 0), App.Vector(4.57, 67.89, 0)), False)
sketch2.addGeometry(Part.LineSegment(App.Vector(4.57, 67.89, 0), App.Vector(3.89, 69.77, 0)), False)
sketch2.addGeometry(Part.ArcOfCircle(Part.Circle(App.Vector(3.56, 69.65, 0), App.Vector(0, 0, 1), 0.35), math.radians(20), math.radians(160)), False)
sketch2.addGeometry(Part.LineSegment(App.Vector(3.23, 69.77, 0), App.Vector(2.55, 67.89, 0)), False)
sketch2.addGeometry(Part.LineSegment(App.Vector(2.55, 67.89, 0), App.Vector(2.25, 67.07, 0)), False)
sketch2.addGeometry(Part.ArcOfCircle(Part.Circle(App.Vector(1.78, 67.24, 0), App.Vector(0, 0, 1), 0.5), math.radians(-160), math.radians(-20)), False)
sketch2.addGeometry(Part.LineSegment(App.Vector(1.31, 67.07, 0), App.Vector(1.01, 67.89, 0)), False)
sketch2.addConstraint(Sketcher.Constraint("Coincident", 0, 2, 1, 1))
sketch2.addConstraint(Sketcher.Constraint("Coincident", 1, 2, 2, 2))
sketch2.addConstraint(Sketcher.Constraint("Coincident", 2, 1, 3, 1))
sketch2.addConstraint(Sketcher.Constraint("Tangent", 3, 2, 4, 1))
sketch2.addConstraint(Sketcher.Constraint("Tangent", 4, 2, 5, 1))
sketch2.addConstraint(Sketcher.Constraint("Coincident", 5, 2, 6, 1))
sketch2.addConstraint(Sketcher.Constraint("Coincident", 6, 2, 7, 1))
sketch2.addConstraint(Sketcher.Constraint("Coincident", 7, 2, 8, 1))
sketch2.addConstraint(Sketcher.Constraint("Coincident", 8, 2, 9, 1))
sketch2.addConstraint(Sketcher.Constraint("Tangent", 9, 2, 10, 1))
sketch2.addConstraint(Sketcher.Constraint("Tangent", 10, 2, 11, 1))
sketch2.addConstraint(Sketcher.Constraint("Coincident", 11, 2, 12, 2))
sketch2.addConstraint(Sketcher.Constraint("Coincident", 12, 1, 13, 1))
sketch2.addConstraint(Sketcher.Constraint("Coincident", 13, 2, 14, 1))
sketch2.addConstraint(Sketcher.Constraint("Coincident", 14, 2, 15, 1))
sketch2.addConstraint(Sketcher.Constraint("Tangent", 15, 2, 16, 2))
sketch2.addConstraint(Sketcher.Constraint("Tangent", 16, 1, 17, 1))
sketch2.addConstraint(Sketcher.Constraint("Coincident", 17, 2, 18, 1))
sketch2.addConstraint(Sketcher.Constraint("Tangent", 18, 2, 19, 1))
sketch2.addConstraint(Sketcher.Constraint("Tangent", 19, 2, 20, 1))
sketch2.addConstraint(Sketcher.Constraint("Coincident", 20, 2, 21, 1))
sketch2.addConstraint(Sketcher.Constraint("Tangent", 21, 2, 22, 2))
sketch2.addConstraint(Sketcher.Constraint("Tangent", 22, 1, 23, 1))
sketch2.addConstraint(Sketcher.Constraint("Coincident", 23, 2, 24, 1))
sketch2.addConstraint(Sketcher.Constraint("Tangent", 24, 2, 25, 1))
sketch2.addConstraint(Sketcher.Constraint("Tangent", 25, 2, 26, 1))
sketch2.addConstraint(Sketcher.Constraint("Coincident", 26, 2, 27, 1))
sketch2.addConstraint(Sketcher.Constraint("Tangent", 27, 2, 28, 2))
sketch2.addConstraint(Sketcher.Constraint("Tangent", 28, 1, 29, 1))
sketch2.addConstraint(Sketcher.Constraint("Coincident", 29, 2, 30, 1))
sketch2.addConstraint(Sketcher.Constraint("Tangent", 30, 2, 31, 1))
sketch2.addConstraint(Sketcher.Constraint("Tangent", 31, 2, 32, 1))
sketch2.addConstraint(Sketcher.Constraint("Coincident", 32, 2, 33, 1))
sketch2.addConstraint(Sketcher.Constraint("Tangent", 33, 2, 34, 2))
sketch2.addConstraint(Sketcher.Constraint("Tangent", 34, 1, 35, 1))
sketch2.addConstraint(Sketcher.Constraint("Coincident", 35, 2, 36, 1))
sketch2.addConstraint(Sketcher.Constraint("Tangent", 36, 2, 37, 1))
sketch2.addConstraint(Sketcher.Constraint("Tangent", 37, 2, 38, 1))
sketch2.addConstraint(Sketcher.Constraint("Coincident", 38, 2, 39, 1))
sketch2.addConstraint(Sketcher.Constraint("Tangent", 39, 2, 40, 2))
sketch2.addConstraint(Sketcher.Constraint("Tangent", 40, 1, 41, 1))
sketch2.addConstraint(Sketcher.Constraint("Coincident", 41, 2, 42, 1))
sketch2.addConstraint(Sketcher.Constraint("Tangent", 42, 2, 43, 1))
sketch2.addConstraint(Sketcher.Constraint("Tangent", 43, 2, 44, 1))
sketch2.addConstraint(Sketcher.Constraint("Coincident", 44, 2, 45, 1))
sketch2.addConstraint(Sketcher.Constraint("Tangent", 45, 2, 46, 2))
sketch2.addConstraint(Sketcher.Constraint("Tangent", 46, 1, 47, 1))
sketch2.addConstraint(Sketcher.Constraint("Coincident", 47, 2, 0, 1))
sketch2.addConstraint(Sketcher.Constraint("Horizontal", 5))
sketch2.addConstraint(Sketcher.Constraint("Vertical", 6))
sketch2.addConstraint(Sketcher.Constraint("Horizontal", 7))
sketch2.addConstraint(Sketcher.Constraint("Vertical", 8))
sketch2.addConstraint(Sketcher.Constraint("Horizontal", 9))
sketch2.addConstraint(Sketcher.Constraint("Equal", 1, 2))
sketch2.addConstraint(Sketcher.Constraint("Equal", 2, 4))
sketch2.addConstraint(Sketcher.Constraint("Equal", 4, 10))
sketch2.addConstraint(Sketcher.Constraint("Equal", 10, 12))
sketch2.addConstraint(Sketcher.Constraint("Equal", 12, 13))
sketch2.addConstraint(Sketcher.Constraint("Equal", 12, 16))
sketch2.addConstraint(Sketcher.Constraint("Equal", 16, 22))
sketch2.addConstraint(Sketcher.Constraint("Equal", 19, 25))
sketch2.addConstraint(Sketcher.Constraint("Equal", 22, 28))
sketch2.addConstraint(Sketcher.Constraint("Equal", 25, 31))
sketch2.addConstraint(Sketcher.Constraint("Equal", 28, 34))
sketch2.addConstraint(Sketcher.Constraint("Equal", 31, 37))
sketch2.addConstraint(Sketcher.Constraint("Equal", 34, 40))
sketch2.addConstraint(Sketcher.Constraint("Equal", 37, 43))
sketch2.addConstraint(Sketcher.Constraint("Equal", 40, 46))
sketch2.addConstraint(Sketcher.Constraint("Parallel", 0, 3))
sketch2.addConstraint(Sketcher.Constraint("Parallel", 11, 14))
sketch2.addConstraint(Sketcher.Constraint("Parallel", 14, 15))
sketch2.addConstraint(Sketcher.Constraint("Parallel", 3, 17))
sketch2.addConstraint(Sketcher.Constraint("Parallel", 17, 18))
sketch2.addConstraint(Sketcher.Constraint("Parallel", 15, 20))
sketch2.addConstraint(Sketcher.Constraint("Parallel", 20, 21))
sketch2.addConstraint(Sketcher.Constraint("Parallel", 18, 23))
sketch2.addConstraint(Sketcher.Constraint("Parallel", 23, 24))
sketch2.addConstraint(Sketcher.Constraint("Parallel", 21, 26))
sketch2.addConstraint(Sketcher.Constraint("Parallel", 26, 27))
sketch2.addConstraint(Sketcher.Constraint("Parallel", 24, 29))
sketch2.addConstraint(Sketcher.Constraint("Parallel", 29, 30))
sketch2.addConstraint(Sketcher.Constraint("Parallel", 27, 32))
sketch2.addConstraint(Sketcher.Constraint("Parallel", 32, 33))
sketch2.addConstraint(Sketcher.Constraint("Parallel", 30, 35))
sketch2.addConstraint(Sketcher.Constraint("Parallel", 35, 36))
sketch2.addConstraint(Sketcher.Constraint("Parallel", 33, 38))
sketch2.addConstraint(Sketcher.Constraint("Parallel", 38, 39))
sketch2.addConstraint(Sketcher.Constraint("Parallel", 36, 41))
sketch2.addConstraint(Sketcher.Constraint("Parallel", 41, 42))
sketch2.addConstraint(Sketcher.Constraint("Parallel", 39, 44))
sketch2.addConstraint(Sketcher.Constraint("Parallel", 44, 45))
sketch2.addConstraint(Sketcher.Constraint("Parallel", 42, 47))
sketch2.addConstraint(Sketcher.Constraint("Horizontal", 4, 3, 10, 3))
sketch2.addConstraint(Sketcher.Constraint("Horizontal", 2, 3, 12, 3))
sketch2.addConstraint(Sketcher.Constraint("Horizontal", 1, 3, 13, 3))
sketch2.addConstraint(Sketcher.Constraint("Horizontal", 16, 3, 22, 3))
sketch2.addConstraint(Sketcher.Constraint("Horizontal", 19, 3, 25, 3))
sketch2.addConstraint(Sketcher.Constraint("Horizontal", 22, 3, 28, 3))
sketch2.addConstraint(Sketcher.Constraint("Horizontal", 25, 3, 31, 3))
sketch2.addConstraint(Sketcher.Constraint("Horizontal", 28, 3, 34, 3))
sketch2.addConstraint(Sketcher.Constraint("Horizontal", 31, 3, 37, 3))
sketch2.addConstraint(Sketcher.Constraint("Horizontal", 34, 3, 40, 3))
sketch2.addConstraint(Sketcher.Constraint("Horizontal", 37, 3, 43, 3))
sketch2.addConstraint(Sketcher.Constraint("Horizontal", 40, 3, 46, 3))
sketch2.addConstraint(Sketcher.Constraint("Horizontal", 3, 2, 10, 2))
sketch2.addConstraint(Sketcher.Constraint("Horizontal", 2, 1, 11, 2))
sketch2.addConstraint(Sketcher.Constraint("Horizontal", 1, 2, 12, 1))
sketch2.addConstraint(Sketcher.Constraint("Horizontal", 0, 2, 13, 2))
sketch2.addConstraint(Sketcher.Constraint("Horizontal", 14, 2, 17, 2))
sketch2.addConstraint(Sketcher.Constraint("Horizontal", 17, 2, 20, 2))
sketch2.addConstraint(Sketcher.Constraint("Horizontal", 20, 2, 23, 2))
sketch2.addConstraint(Sketcher.Constraint("Horizontal", 23, 2, 26, 2))
sketch2.addConstraint(Sketcher.Constraint("Horizontal", 26, 2, 29, 2))
sketch2.addConstraint(Sketcher.Constraint("Horizontal", 29, 2, 32, 2))
sketch2.addConstraint(Sketcher.Constraint("Horizontal", 32, 2, 35, 2))
sketch2.addConstraint(Sketcher.Constraint("Horizontal", 35, 2, 38, 2))
sketch2.addConstraint(Sketcher.Constraint("Horizontal", 38, 2, 41, 2))
sketch2.addConstraint(Sketcher.Constraint("Horizontal", 41, 2, 44, 2))
sketch2.addConstraint(Sketcher.Constraint("Horizontal", 44, 2, 47, 2))
sketch2.addConstraint(Sketcher.Constraint("Equal", 5, 9))
sketch2.addConstraint(Sketcher.Constraint("Radius", 2, 0.499998))
sketch2.addConstraint(Sketcher.Constraint("Angle", 18, Q("109.999996 deg")))
sketch2.addConstraint(Sketcher.Constraint("Radius", 19, 0.349999))
sketch2.addConstraint(Sketcher.Constraint("DistanceX", 7, 1, 7, 2, 30.4))
sketch2.addConstraint(Sketcher.Constraint("DistanceY", 6, 2, 6, 1, 12.5))
sketch2.addConstraint(Sketcher.Constraint("DistanceY", -1, 1, 4, 3, 72.0))
sketch2.addConstraint(Sketcher.Constraint("DistanceY", -1, 1, 1, 2, 70.0))
sketch2.addConstraint(Sketcher.Constraint("DistanceX", -1, 1, 19, 3, 17.8))
sketch2.addConstraint(Sketcher.Constraint("DistanceX", -1, 1, 34, 3, 8.9))
sketch2.addConstraint(Sketcher.Constraint("DistanceY", -1, 1, 19, 3, 69.650001))
sketch2.addConstraint(Sketcher.Constraint("DistanceX", 5, 2, 5, 1, 3.079372))
sketch2.addConstraint(Sketcher.Constraint("Distance", 18, 1.99781))
sketch2.addConstraint(Sketcher.Constraint("DistanceX", 1, 3, -1, 1, 0.11286))
sketch2.addConstraint(Sketcher.Constraint("DistanceX", 2, 1, -1, 1, 0.292509))
sketch2.addConstraint(Sketcher.Constraint("Distance", 0, 1.915676))
sketch2.setExpression("Constraints[120]", "Params.sketch2_radius")
sketch2.setExpression("Constraints[122]", "Params.sketch2_radius2")
sketch2.setExpression("Constraints[123]", "Params.sketch2_width")
sketch2.setExpression("Constraints[124]", "Params.sketch2_height")
pad2 = doc.addObject("PartDesign::Pad", "Pad001")
body2.addObject(pad2)
pad2.Profile = sketch2
pad2.setExpression("Length", "Params.pad2_length")
body3 = doc.addObject("PartDesign::Body", "Body002")
body3.AllowCompound = True

# Sketch on XY plane
sketch3 = doc.addObject("Sketcher::SketchObject", "Sketch002")
body3.addObject(sketch3)
sketch3.AttachmentSupport = (doc.getObject("XY_Plane002"), [""])
sketch3.MapMode = "FlatFace"
sketch3.addGeometry(Part.Circle(App.Vector(0.5, 71.39, 0), App.Vector(0, 0, 1), 0.38), False)
sketch3.addGeometry(Part.Circle(App.Vector(1.63, 71.39, 0), App.Vector(0, 0, 1), 0.38), False)
sketch3.addGeometry(Part.Circle(App.Vector(2.76, 71.39, 0), App.Vector(0, 0, 1), 0.38), False)
sketch3.addGeometry(Part.Circle(App.Vector(3.89, 71.39, 0), App.Vector(0, 0, 1), 0.38), False)
sketch3.addGeometry(Part.Circle(App.Vector(5.02, 71.39, 0), App.Vector(0, 0, 1), 0.38), False)
sketch3.addGeometry(Part.Circle(App.Vector(6.15, 71.39, 0), App.Vector(0, 0, 1), 0.38), False)
sketch3.addGeometry(Part.Circle(App.Vector(7.28, 71.39, 0), App.Vector(0, 0, 1), 0.38), False)
sketch3.addGeometry(Part.Circle(App.Vector(8.41, 71.39, 0), App.Vector(0, 0, 1), 0.38), False)
sketch3.addGeometry(Part.Circle(App.Vector(9.54, 71.39, 0), App.Vector(0, 0, 1), 0.38), False)
sketch3.addGeometry(Part.Circle(App.Vector(10.67, 71.39, 0), App.Vector(0, 0, 1), 0.38), False)
sketch3.addGeometry(Part.Circle(App.Vector(11.8, 71.39, 0), App.Vector(0, 0, 1), 0.38), False)
sketch3.addGeometry(Part.Circle(App.Vector(12.93, 71.39, 0), App.Vector(0, 0, 1), 0.38), False)
sketch3.addGeometry(Part.Circle(App.Vector(14.06, 71.39, 0), App.Vector(0, 0, 1), 0.38), False)
sketch3.addGeometry(Part.Circle(App.Vector(17.45, 71.39, 0), App.Vector(0, 0, 1), 0.38), False)
sketch3.addGeometry(Part.Circle(App.Vector(18.58, 71.39, 0), App.Vector(0, 0, 1), 0.38), False)
sketch3.addGeometry(Part.Circle(App.Vector(19.71, 71.39, 0), App.Vector(0, 0, 1), 0.38), False)
sketch3.addGeometry(Part.Circle(App.Vector(20.84, 71.39, 0), App.Vector(0, 0, 1), 0.38), False)
sketch3.addGeometry(Part.Circle(App.Vector(16.32, 71.39, 0), App.Vector(0, 0, 1), 0.38), False)
sketch3.addGeometry(Part.Circle(App.Vector(15.19, 71.39, 0), App.Vector(0, 0, 1), 0.38), False)
sketch3.addConstraint(Sketcher.Constraint("Equal", 0, 1))
sketch3.addConstraint(Sketcher.Constraint("Equal", 1, 2))
sketch3.addConstraint(Sketcher.Constraint("Equal", 2, 3))
sketch3.addConstraint(Sketcher.Constraint("Equal", 3, 4))
sketch3.addConstraint(Sketcher.Constraint("Equal", 4, 5))
sketch3.addConstraint(Sketcher.Constraint("Equal", 5, 6))
sketch3.addConstraint(Sketcher.Constraint("Equal", 6, 7))
sketch3.addConstraint(Sketcher.Constraint("Equal", 7, 8))
sketch3.addConstraint(Sketcher.Constraint("Equal", 8, 9))
sketch3.addConstraint(Sketcher.Constraint("Equal", 9, 10))
sketch3.addConstraint(Sketcher.Constraint("Equal", 10, 11))
sketch3.addConstraint(Sketcher.Constraint("Equal", 11, 12))
sketch3.addConstraint(Sketcher.Constraint("Equal", 12, 13))
sketch3.addConstraint(Sketcher.Constraint("Equal", 13, 14))
sketch3.addConstraint(Sketcher.Constraint("Equal", 14, 15))
sketch3.addConstraint(Sketcher.Constraint("Equal", 15, 16))
sketch3.addConstraint(Sketcher.Constraint("Equal", 16, 17))
sketch3.addConstraint(Sketcher.Constraint("Equal", 17, 18))
sketch3.addConstraint(Sketcher.Constraint("Horizontal", 0, 3, 1, 3))
sketch3.addConstraint(Sketcher.Constraint("Horizontal", 1, 3, 2, 3))
sketch3.addConstraint(Sketcher.Constraint("Horizontal", 2, 3, 3, 3))
sketch3.addConstraint(Sketcher.Constraint("Horizontal", 3, 3, 4, 3))
sketch3.addConstraint(Sketcher.Constraint("Horizontal", 4, 3, 5, 3))
sketch3.addConstraint(Sketcher.Constraint("Horizontal", 5, 3, 6, 3))
sketch3.addConstraint(Sketcher.Constraint("Horizontal", 6, 3, 7, 3))
sketch3.addConstraint(Sketcher.Constraint("Horizontal", 7, 3, 8, 3))
sketch3.addConstraint(Sketcher.Constraint("Horizontal", 8, 3, 9, 3))
sketch3.addConstraint(Sketcher.Constraint("Horizontal", 9, 3, 10, 3))
sketch3.addConstraint(Sketcher.Constraint("Horizontal", 10, 3, 11, 3))
sketch3.addConstraint(Sketcher.Constraint("Horizontal", 11, 3, 12, 3))
sketch3.addConstraint(Sketcher.Constraint("Horizontal", 12, 3, 13, 3))
sketch3.addConstraint(Sketcher.Constraint("Horizontal", 13, 3, 14, 3))
sketch3.addConstraint(Sketcher.Constraint("Horizontal", 14, 3, 15, 3))
sketch3.addConstraint(Sketcher.Constraint("Horizontal", 15, 3, 16, 3))
sketch3.addConstraint(Sketcher.Constraint("Horizontal", 16, 3, 17, 3))
sketch3.addConstraint(Sketcher.Constraint("Horizontal", 17, 3, 18, 3))
sketch3.addConstraint(Sketcher.Constraint("Diameter", 0, 0.75))
sketch3.addConstraint(Sketcher.Constraint("DistanceX", -1, 1, 0, 3, 0.5))
sketch3.addConstraint(Sketcher.Constraint("DistanceX", -1, 1, 10, 3, 11.8))
sketch3.addConstraint(Sketcher.Constraint("DistanceX", -1, 1, 1, 3, 1.63))
sketch3.addConstraint(Sketcher.Constraint("DistanceX", -1, 1, 2, 3, 2.76))
sketch3.addConstraint(Sketcher.Constraint("DistanceX", -1, 1, 3, 3, 3.89))
sketch3.addConstraint(Sketcher.Constraint("DistanceX", -1, 1, 4, 3, 5.02))
sketch3.addConstraint(Sketcher.Constraint("DistanceX", -1, 1, 5, 3, 6.15))
sketch3.addConstraint(Sketcher.Constraint("DistanceX", -1, 1, 6, 3, 7.28))
sketch3.addConstraint(Sketcher.Constraint("DistanceX", -1, 1, 7, 3, 8.41))
sketch3.addConstraint(Sketcher.Constraint("DistanceX", -1, 1, 8, 3, 9.54))
sketch3.addConstraint(Sketcher.Constraint("DistanceX", -1, 1, 9, 3, 10.67))
sketch3.addConstraint(Sketcher.Constraint("DistanceX", -1, 1, 11, 3, 12.93))
sketch3.addConstraint(Sketcher.Constraint("DistanceX", -1, 1, 12, 3, 14.06))
sketch3.addConstraint(Sketcher.Constraint("DistanceX", -1, 1, 13, 3, 17.45))
sketch3.addConstraint(Sketcher.Constraint("DistanceX", -1, 1, 14, 3, 18.58))
sketch3.addConstraint(Sketcher.Constraint("DistanceX", -1, 1, 15, 3, 19.71))
sketch3.addConstraint(Sketcher.Constraint("DistanceX", -1, 1, 16, 3, 20.84))
sketch3.addConstraint(Sketcher.Constraint("DistanceX", -1, 1, 17, 3, 16.32))
sketch3.addConstraint(Sketcher.Constraint("DistanceX", -1, 1, 18, 3, 15.19))
sketch3.addConstraint(Sketcher.Constraint("DistanceY", -1, 1, 0, 3, 71.39238))
sketch3.setExpression("Constraints[36]", "Params.sketch3_diameter")
pad3 = doc.addObject("PartDesign::Pad", "Pad002")
body3.addObject(pad3)
pad3.Profile = sketch3
pad3.setExpression("Length", "Params.pad3_length")

doc.recompute()
